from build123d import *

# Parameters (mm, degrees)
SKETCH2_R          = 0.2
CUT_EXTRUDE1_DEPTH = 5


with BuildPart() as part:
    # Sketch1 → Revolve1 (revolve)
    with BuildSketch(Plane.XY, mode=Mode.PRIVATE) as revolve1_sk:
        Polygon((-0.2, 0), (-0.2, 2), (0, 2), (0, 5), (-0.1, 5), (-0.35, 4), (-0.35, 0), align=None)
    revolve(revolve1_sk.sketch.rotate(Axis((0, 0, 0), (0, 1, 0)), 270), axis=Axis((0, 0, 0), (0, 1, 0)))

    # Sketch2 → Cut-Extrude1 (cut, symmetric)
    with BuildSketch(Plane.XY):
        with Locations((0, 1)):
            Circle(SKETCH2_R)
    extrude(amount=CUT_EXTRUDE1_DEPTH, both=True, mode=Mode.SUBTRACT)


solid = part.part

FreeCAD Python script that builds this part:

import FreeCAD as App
import Part
import Sketcher

V = App.Vector
Q = App.Units.Quantity


def add_polygon(sketch, points):
    """Adds a closed chain of lines whose ends are joined by coincident constraints."""
    first, n = sketch.GeometryCount, len(points)
    for a, b in zip(points, points[1:] + points[:1]):
        sketch.addGeometry(Part.LineSegment(App.Vector(*a, 0), App.Vector(*b, 0)), False)
    for i in range(n):
        sketch.addConstraint(Sketcher.Constraint("Coincident", first + i, 2, first + (i + 1) % n, 1))

doc = App.newDocument("Part")
body = doc.addObject("PartDesign::Body", "Body")

sketch1 = body.newObject("Sketcher::SketchObject", "Sketch")
sketch1.AttachmentSupport = (doc.getObject("XY_Plane"), [""])
sketch1.MapMode = "FlatFace"
add_polygon(sketch1, [(-0.2, 0), (-0.2, 2), (0, 2), (0, 5), (-0.1, 5), (-0.35, 4), (-0.35, 0)])
sketch1.addConstraint([
    Sketcher.Constraint("Vertical", 0),
    Sketcher.Constraint("Horizontal", 1),
    Sketcher.Constraint("Vertical", 2),
    Sketcher.Constraint("Horizontal", 3),
    Sketcher.Constraint("Vertical", 5),
    Sketcher.Constraint("Horizontal", 6),
    Sketcher.Constraint("PointOnObject", 1, 2, -2),
    Sketcher.Constraint("PointOnObject", 5, 2, -1),
    Sketcher.Constraint("DistanceY", 0, 1, 0, 2, Q("2 mm")),
    Sketcher.Constraint("DistanceY", 2, 1, 2, 2, Q("3 mm")),
    Sketcher.Constraint("DistanceY", 5, 2, 5, 1, Q("4 mm")),
    Sketcher.Constraint("DistanceX", 1, 1, 1, 2, Q("0.2 mm")),
    Sketcher.Constraint("DistanceX", 3, 2, 3, 1, Q("0.1 mm")),
    Sketcher.Constraint("DistanceX", 6, 1, 6, 2, Q("0.15 mm")),
])
revolution = body.newObject("PartDesign::Revolution", "Revolution")
revolution.Profile = sketch1
revolution.ReferenceAxis = (sketch1, ["V_Axis"])
revolution.Angle = 360

sketch2 = body.newObject("Sketcher::SketchObject", "Sketch001")
sketch2.AttachmentSupport = (doc.getObject("XY_Plane"), [""])
sketch2.MapMode = "FlatFace"
sketch2.addGeometry(Part.Circle(V(0, 1, 0), V(0, 0, 1), 0.2), False)
sketch2.addConstraint([
    Sketcher.Constraint("PointOnObject", 0, 3, -2),
    Sketcher.Constraint("Diameter", 0, Q("0.4 mm")),
    Sketcher.Constraint("DistanceY", -1, 1, 0, 3, Q("1 mm")),
])
pocket1 = body.newObject("PartDesign::Pocket", "Pocket")
pocket1.Profile = sketch2
pocket1.Length = 10
pocket1.Midplane = True

doc.recompute()
